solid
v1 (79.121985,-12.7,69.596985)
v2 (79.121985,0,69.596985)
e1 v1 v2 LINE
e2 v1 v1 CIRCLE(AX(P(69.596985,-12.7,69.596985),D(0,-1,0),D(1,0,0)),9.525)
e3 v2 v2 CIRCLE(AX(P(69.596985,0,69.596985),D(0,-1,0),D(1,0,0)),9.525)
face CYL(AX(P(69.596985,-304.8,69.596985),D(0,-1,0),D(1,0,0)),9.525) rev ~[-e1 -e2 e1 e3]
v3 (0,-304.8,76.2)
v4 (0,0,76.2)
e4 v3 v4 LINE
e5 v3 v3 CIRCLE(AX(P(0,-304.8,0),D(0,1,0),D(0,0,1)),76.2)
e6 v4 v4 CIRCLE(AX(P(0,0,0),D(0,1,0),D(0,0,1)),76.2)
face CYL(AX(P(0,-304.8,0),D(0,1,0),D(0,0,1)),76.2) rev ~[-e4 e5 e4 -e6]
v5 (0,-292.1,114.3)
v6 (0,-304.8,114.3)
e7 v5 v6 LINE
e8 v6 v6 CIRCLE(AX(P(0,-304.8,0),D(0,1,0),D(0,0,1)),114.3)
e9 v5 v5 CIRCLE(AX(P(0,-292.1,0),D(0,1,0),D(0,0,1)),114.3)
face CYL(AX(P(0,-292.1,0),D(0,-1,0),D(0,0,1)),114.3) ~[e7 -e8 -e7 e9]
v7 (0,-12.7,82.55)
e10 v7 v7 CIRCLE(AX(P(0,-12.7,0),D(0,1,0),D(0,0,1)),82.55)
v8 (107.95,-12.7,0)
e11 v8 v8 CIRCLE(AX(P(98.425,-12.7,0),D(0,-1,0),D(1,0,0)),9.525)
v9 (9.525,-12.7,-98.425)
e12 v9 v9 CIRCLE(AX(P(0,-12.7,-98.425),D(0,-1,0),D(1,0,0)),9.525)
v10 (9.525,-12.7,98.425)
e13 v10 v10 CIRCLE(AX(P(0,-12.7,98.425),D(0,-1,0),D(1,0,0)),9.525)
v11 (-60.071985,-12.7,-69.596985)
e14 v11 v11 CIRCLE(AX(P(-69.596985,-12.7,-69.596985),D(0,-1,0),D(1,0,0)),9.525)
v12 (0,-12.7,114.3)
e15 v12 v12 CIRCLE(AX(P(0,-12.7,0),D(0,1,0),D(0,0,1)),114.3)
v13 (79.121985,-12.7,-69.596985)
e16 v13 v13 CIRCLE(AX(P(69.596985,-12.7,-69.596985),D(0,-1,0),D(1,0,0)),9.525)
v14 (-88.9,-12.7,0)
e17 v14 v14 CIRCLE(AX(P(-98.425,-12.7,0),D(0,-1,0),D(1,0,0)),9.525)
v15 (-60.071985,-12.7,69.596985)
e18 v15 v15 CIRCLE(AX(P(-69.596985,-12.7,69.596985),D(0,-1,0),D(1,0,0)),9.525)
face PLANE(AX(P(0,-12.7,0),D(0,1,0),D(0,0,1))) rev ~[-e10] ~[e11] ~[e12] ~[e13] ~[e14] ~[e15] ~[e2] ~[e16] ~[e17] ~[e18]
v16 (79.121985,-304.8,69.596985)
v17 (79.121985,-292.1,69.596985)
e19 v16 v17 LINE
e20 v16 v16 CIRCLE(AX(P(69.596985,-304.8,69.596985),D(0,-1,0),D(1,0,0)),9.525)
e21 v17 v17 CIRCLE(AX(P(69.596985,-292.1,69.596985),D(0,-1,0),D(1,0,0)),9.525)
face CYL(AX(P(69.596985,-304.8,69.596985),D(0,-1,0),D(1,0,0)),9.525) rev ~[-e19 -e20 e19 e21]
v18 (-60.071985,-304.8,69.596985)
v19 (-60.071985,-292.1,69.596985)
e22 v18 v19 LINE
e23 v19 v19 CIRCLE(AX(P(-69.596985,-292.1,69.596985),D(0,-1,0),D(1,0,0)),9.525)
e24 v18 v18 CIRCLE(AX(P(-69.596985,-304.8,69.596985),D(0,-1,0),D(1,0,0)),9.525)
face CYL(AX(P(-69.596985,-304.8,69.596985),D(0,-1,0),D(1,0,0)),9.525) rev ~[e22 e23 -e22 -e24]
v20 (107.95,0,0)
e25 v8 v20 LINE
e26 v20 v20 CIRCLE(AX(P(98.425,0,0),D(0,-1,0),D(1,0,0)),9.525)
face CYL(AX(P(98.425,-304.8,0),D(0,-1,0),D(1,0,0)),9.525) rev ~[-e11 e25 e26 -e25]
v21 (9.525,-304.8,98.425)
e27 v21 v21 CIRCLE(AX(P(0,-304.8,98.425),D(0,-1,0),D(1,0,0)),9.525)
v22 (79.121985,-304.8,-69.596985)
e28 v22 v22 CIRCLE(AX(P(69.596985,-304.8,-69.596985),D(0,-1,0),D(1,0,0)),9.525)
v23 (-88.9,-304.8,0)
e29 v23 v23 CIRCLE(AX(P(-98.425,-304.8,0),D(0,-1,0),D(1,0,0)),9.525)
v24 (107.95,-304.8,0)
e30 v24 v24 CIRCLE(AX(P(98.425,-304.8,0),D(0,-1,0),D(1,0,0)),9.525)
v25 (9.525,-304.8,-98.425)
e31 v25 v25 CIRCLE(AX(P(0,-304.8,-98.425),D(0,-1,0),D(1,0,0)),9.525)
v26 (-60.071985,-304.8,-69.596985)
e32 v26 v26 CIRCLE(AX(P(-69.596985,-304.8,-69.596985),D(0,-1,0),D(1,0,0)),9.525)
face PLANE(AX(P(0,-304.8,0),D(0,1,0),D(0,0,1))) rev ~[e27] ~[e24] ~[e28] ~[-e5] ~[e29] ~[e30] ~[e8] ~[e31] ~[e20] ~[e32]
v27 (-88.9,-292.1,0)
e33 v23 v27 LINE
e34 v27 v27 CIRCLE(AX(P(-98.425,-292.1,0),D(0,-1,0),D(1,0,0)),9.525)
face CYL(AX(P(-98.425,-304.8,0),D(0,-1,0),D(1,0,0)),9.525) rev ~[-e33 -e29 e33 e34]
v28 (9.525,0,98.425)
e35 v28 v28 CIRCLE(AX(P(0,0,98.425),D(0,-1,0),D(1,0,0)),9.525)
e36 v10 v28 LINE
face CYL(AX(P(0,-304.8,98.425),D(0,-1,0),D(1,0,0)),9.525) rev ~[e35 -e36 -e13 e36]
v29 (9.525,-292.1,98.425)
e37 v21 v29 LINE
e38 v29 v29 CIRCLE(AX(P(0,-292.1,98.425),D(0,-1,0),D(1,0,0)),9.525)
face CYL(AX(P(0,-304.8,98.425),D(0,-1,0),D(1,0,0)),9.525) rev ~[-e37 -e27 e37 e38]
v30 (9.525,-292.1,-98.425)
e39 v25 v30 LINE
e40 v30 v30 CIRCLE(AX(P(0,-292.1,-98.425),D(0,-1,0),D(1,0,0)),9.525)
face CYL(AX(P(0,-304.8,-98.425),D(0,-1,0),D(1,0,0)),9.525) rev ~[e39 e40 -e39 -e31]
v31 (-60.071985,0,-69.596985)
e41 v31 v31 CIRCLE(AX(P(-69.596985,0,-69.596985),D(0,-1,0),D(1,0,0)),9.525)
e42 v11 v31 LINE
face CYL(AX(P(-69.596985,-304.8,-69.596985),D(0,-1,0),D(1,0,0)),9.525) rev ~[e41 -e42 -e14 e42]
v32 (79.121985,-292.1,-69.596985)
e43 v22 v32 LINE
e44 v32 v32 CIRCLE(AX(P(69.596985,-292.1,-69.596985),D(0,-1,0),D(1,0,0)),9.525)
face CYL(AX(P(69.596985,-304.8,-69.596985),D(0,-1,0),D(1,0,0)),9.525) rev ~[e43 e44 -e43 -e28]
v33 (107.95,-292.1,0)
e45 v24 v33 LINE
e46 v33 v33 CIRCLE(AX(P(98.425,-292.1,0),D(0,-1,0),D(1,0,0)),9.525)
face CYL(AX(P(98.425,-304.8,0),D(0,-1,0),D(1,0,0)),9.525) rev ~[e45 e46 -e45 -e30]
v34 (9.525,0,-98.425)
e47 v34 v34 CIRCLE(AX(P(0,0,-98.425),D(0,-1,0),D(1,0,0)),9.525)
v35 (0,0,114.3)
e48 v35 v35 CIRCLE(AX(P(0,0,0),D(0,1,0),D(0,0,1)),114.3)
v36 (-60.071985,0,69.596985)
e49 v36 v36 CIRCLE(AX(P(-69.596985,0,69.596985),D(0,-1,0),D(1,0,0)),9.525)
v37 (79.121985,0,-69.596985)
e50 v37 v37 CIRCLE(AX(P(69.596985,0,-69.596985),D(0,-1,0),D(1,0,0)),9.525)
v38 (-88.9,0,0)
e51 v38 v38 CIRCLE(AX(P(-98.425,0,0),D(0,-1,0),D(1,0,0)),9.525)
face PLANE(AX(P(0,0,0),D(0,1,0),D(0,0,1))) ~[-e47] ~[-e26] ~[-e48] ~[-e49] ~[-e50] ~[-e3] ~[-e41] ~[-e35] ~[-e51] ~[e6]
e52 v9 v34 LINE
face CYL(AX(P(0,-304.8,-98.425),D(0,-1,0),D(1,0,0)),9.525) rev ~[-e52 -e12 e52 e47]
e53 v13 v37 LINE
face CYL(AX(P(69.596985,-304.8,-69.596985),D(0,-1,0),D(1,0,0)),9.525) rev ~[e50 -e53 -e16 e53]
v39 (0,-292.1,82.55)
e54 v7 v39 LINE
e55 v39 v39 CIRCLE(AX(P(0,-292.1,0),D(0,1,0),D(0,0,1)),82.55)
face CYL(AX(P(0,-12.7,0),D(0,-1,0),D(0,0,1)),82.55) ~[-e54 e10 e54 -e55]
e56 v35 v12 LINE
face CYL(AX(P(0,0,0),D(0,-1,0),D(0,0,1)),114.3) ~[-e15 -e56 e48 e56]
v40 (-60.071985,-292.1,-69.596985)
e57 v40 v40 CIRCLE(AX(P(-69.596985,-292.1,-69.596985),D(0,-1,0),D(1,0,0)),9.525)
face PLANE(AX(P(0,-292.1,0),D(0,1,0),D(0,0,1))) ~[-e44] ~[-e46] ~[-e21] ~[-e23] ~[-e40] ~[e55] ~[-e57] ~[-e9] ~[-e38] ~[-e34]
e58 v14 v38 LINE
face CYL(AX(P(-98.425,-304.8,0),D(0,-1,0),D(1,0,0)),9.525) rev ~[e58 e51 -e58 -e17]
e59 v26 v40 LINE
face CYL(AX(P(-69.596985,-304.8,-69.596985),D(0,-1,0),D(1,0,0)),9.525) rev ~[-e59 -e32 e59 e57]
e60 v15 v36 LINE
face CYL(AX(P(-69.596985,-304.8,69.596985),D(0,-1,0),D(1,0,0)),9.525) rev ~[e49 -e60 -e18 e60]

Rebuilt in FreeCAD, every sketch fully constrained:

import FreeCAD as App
import Part
import Sketcher

V = App.Vector
Q = App.Units.Quantity


def add_polygon(sketch, points):
    """Adds a closed chain of lines whose ends are joined by coincident constraints."""
    first, n = sketch.GeometryCount, len(points)
    for a, b in zip(points, points[1:] + points[:1]):
        sketch.addGeometry(Part.LineSegment(App.Vector(*a, 0), App.Vector(*b, 0)), False)
    for i in range(n):
        sketch.addConstraint(Sketcher.Constraint("Coincident", first + i, 2, first + (i + 1) % n, 1))

doc = App.newDocument("Part")
body = doc.addObject("PartDesign::Body", "Body")

sketch1 = body.newObject("Sketcher::SketchObject", "Sketch")
sketch1.AttachmentSupport = (doc.getObject("YZ_Plane"), [""])
sketch1.MapMode = "FlatFace"
add_polygon(sketch1, [(0, 76), (0, 114), (-13, 114), (-13, 83), (-292, 83), (-292, 114), (-305, 114), (-305, 76)])
sketch1.addConstraint([
    Sketcher.Constraint("Vertical", 0),
    Sketcher.Constraint("Horizontal", 1),
    Sketcher.Constraint("Vertical", 2),
    Sketcher.Constraint("Horizontal", 3),
    Sketcher.Constraint("Vertical", 4),
    Sketcher.Constraint("Horizontal", 5),
    Sketcher.Constraint("Vertical", 6),
    Sketcher.Constraint("Horizontal", 7),
    Sketcher.Constraint("PointOnObject", 0, 2, -2),
    Sketcher.Constraint("Horizontal", 1, 2, 4, 2),
    Sketcher.Constraint("Equal", 1, 5),
    Sketcher.Constraint("DistanceX", 3, 2, 3, 1, Q("11 in")),
    Sketcher.Constraint("DistanceX", 7, 1, 7, 2, Q("12 in")),
    Sketcher.Constraint("DistanceY", 0, 1, 0, 2, Q("1.5 in")),
    Sketcher.Constraint("DistanceY", -1, 1, 6, 2, Q("3 in")),
    Sketcher.Constraint("DistanceY", 2, 2, 2, 1, Q("1.25 in")),
])
revolution = body.newObject("PartDesign::Revolution", "Revolution")
revolution.Profile = sketch1
revolution.ReferenceAxis = (sketch1, ["H_Axis"])
revolution.Angle = 360

sketch2 = body.newObject("Sketcher::SketchObject", "Sketch001")
sketch2.AttachmentSupport = (doc.getObject("XZ_Plane"), [""])
sketch2.MapMode = "FlatFace"
sketch2.AttachmentOffset = App.Placement(V(0, 0, 12 * 25.4), App.Rotation())
sketch2.addGeometry([
    Part.Circle(V(0, 98, 0), V(0, 0, 1), 10),
    Part.Circle(V(-70, 70, 0), V(0, 0, 1), 10),
    Part.Circle(V(-98, 0, 0), V(0, 0, 1), 10),
    Part.Circle(V(-70, -70, 0), V(0, 0, 1), 10),
    Part.Circle(V(0, -98, 0), V(0, 0, 1), 10),
    Part.Circle(V(70, -70, 0), V(0, 0, 1), 10),
    Part.Circle(V(98, 0, 0), V(0, 0, 1), 10),
    Part.Circle(V(70, 70, 0), V(0, 0, 1), 10),
], False)
sketch2.addConstraint([
    Sketcher.Constraint("Equal", 0, 1),
    Sketcher.Constraint("Equal", 1, 2),
    Sketcher.Constraint("Equal", 2, 3),
    Sketcher.Constraint("Equal", 3, 4),
    Sketcher.Constraint("Equal", 4, 5),
    Sketcher.Constraint("Equal", 5, 6),
    Sketcher.Constraint("Equal", 6, 7),
    Sketcher.Constraint("Symmetric", 0, 3, 4, 3, -1, 1),
    Sketcher.Constraint("Symmetric", 1, 3, 5, 3, -1, 1),
    Sketcher.Constraint("Symmetric", 2, 3, 6, 3, -1, 1),
    Sketcher.Constraint("Symmetric", 3, 3, 7, 3, -1, 1),
    Sketcher.Constraint("Symmetric", 3, 3, 5, 3, -2),
    Sketcher.Constraint("PointOnObject", 0, 3, -2),
    Sketcher.Constraint("PointOnObject", 2, 3, -1),
    Sketcher.Constraint("Diameter", 0, Q("0.75 in")),
    Sketcher.Constraint("DistanceY", 4, 3, 0, 3, Q("7.75 in")),
    Sketcher.Constraint("DistanceX", 2, 3, -1, 1, Q("3.875 in")),
    Sketcher.Constraint("DistanceY", 3, 3, 1, 3, 139.19397),
    Sketcher.Constraint("DistanceX", 3, 3, 5, 3, 139.19397),
])
pocket1 = body.newObject("PartDesign::Pocket", "Pocket")
pocket1.Profile = sketch2
pocket1.Type = "ThroughAll"

doc.recompute()
